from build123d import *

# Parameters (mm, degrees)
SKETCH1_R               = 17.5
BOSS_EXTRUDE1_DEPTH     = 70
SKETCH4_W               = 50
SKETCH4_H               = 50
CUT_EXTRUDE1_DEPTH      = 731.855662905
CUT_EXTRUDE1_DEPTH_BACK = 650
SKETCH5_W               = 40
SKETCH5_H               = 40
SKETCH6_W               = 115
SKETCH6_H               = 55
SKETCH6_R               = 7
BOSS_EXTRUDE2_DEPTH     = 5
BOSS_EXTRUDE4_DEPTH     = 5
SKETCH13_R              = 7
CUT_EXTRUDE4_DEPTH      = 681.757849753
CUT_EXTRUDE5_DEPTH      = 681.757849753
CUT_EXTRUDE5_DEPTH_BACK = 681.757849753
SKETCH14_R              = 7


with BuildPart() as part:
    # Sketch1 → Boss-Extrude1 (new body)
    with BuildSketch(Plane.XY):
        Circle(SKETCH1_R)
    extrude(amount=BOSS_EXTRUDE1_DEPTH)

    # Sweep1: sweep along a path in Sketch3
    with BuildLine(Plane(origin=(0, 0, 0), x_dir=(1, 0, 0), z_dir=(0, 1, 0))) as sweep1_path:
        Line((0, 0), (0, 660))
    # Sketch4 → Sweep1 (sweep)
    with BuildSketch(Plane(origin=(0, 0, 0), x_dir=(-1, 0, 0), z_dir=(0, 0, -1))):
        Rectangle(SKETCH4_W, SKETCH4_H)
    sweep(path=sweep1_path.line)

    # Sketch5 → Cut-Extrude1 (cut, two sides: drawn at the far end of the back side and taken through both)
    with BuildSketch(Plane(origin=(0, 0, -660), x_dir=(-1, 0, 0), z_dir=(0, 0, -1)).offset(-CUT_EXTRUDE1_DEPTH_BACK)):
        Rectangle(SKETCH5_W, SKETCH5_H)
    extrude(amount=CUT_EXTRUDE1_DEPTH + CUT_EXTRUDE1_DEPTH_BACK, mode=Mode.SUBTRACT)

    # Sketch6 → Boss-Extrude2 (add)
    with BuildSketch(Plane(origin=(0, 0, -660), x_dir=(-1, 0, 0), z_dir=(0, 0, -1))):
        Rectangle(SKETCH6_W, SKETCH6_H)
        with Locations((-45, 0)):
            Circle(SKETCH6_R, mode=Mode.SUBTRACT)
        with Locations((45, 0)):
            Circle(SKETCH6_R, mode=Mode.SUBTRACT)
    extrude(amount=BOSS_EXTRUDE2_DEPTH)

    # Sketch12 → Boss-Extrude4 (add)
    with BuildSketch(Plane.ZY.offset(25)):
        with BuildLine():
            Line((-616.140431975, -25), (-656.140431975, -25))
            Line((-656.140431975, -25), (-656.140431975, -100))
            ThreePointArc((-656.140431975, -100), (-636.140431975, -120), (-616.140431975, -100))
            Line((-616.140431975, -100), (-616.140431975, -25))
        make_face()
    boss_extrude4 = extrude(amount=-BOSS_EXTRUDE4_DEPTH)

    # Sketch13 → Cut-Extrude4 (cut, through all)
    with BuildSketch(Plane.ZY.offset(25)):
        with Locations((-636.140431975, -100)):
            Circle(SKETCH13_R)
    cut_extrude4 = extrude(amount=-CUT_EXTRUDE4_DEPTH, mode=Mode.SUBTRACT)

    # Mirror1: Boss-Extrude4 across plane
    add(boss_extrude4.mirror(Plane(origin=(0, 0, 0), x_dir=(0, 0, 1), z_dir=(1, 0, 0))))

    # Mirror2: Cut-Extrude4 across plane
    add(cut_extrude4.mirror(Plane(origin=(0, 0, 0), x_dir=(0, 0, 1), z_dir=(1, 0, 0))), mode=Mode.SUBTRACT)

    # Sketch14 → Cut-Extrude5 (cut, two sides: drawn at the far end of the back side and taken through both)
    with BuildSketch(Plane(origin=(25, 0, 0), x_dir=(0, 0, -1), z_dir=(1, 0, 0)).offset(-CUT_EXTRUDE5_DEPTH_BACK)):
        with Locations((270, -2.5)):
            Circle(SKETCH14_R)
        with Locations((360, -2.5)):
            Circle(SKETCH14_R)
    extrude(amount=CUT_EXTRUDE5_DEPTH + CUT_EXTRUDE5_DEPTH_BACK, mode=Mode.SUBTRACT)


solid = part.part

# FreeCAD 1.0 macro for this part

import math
import FreeCAD as App
import Part
import Sketcher

V = App.Vector

doc = App.newDocument("Part")
body = doc.addObject("PartDesign::Body", "Body")

# Sketch on XY plane
sketch1 = body.newObject("Sketcher::SketchObject", "Sketch")
sketch1.AttachmentSupport = (doc.getObject("XY_Plane"), [""])
sketch1.MapMode = "FlatFace"
sketch1.addGeometry(Part.Circle(V(0, 0, 0), V(0, 0, 1), 17.5), False)
sketch1.addConstraint([
    Sketcher.Constraint("Coincident", 0, 3, -1, 1),
    Sketcher.Constraint("Diameter", 0, 35.0),
])
pad1 = body.newObject("PartDesign::Pad", "Pad")
pad1.Profile = sketch1
pad1.Length = 70

# Sketch on XY plane
sketch2 = body.newObject("Sketcher::SketchObject", "Sketch001")
sketch2.AttachmentSupport = (doc.getObject("XY_Plane"), [""])
sketch2.MapMode = "FlatFace"
sketch2.addGeometry([
    Part.LineSegment(V(25, 25, 0), V(25, -25, 0)),
    Part.LineSegment(V(25, -25, 0), V(-25, -25, 0)),
    Part.LineSegment(V(-25, -25, 0), V(-25, 25, 0)),
    Part.LineSegment(V(-25, 25, 0), V(25, 25, 0)),
], False)
sketch2.addConstraint([
    Sketcher.Constraint("Coincident", 0, 2, 1, 1),
    Sketcher.Constraint("Coincident", 1, 2, 2, 1),
    Sketcher.Constraint("Coincident", 2, 2, 3, 1),
    Sketcher.Constraint("Coincident", 3, 2, 0, 1),
    Sketcher.Constraint("Vertical", 0),
    Sketcher.Constraint("Horizontal", 1),
    Sketcher.Constraint("Vertical", 2),
    Sketcher.Constraint("Horizontal", 3),
    Sketcher.Constraint("Symmetric", 0, 2, 2, 2, -1, 1),
    Sketcher.Constraint("Equal", 3, 0),
    Sketcher.Constraint("DistanceX", 1, 2, 1, 1, 50.0),
])

# Sketch on XZ plane
sketch3 = body.newObject("Sketcher::SketchObject", "Sketch002")
sketch3.AttachmentSupport = (doc.getObject("XZ_Plane"), [""])
sketch3.MapMode = "FlatFace"
sketch3.addGeometry(Part.LineSegment(V(0, 0, 0), V(0, -660, 0)), False)
sketch3.addConstraint([
    Sketcher.Constraint("Vertical", 0),
    Sketcher.Constraint("Coincident", 0, 1, -1, 1),
    Sketcher.Constraint("DistanceY", 0, 2, 0, 1, 660.0),
])
doc.recompute()

additivepipe = body.newObject("PartDesign::AdditivePipe", "AdditivePipe")
additivepipe.Profile = sketch2
additivepipe.Spine = (sketch3, ["Edge1"])

# Sketch on XY plane
sketch4 = body.newObject("Sketcher::SketchObject", "Sketch003")
sketch4.AttachmentSupport = (doc.getObject("XY_Plane"), [""])
sketch4.MapMode = "FlatFace"
sketch4.AttachmentOffset = App.Placement(V(0, 0, -660), App.Rotation())
sketch4.addGeometry([
    Part.LineSegment(V(20, 20, 0), V(20, -20, 0)),
    Part.LineSegment(V(20, -20, 0), V(-20, -20, 0)),
    Part.LineSegment(V(-20, -20, 0), V(-20, 20, 0)),
    Part.LineSegment(V(-20, 20, 0), V(20, 20, 0)),
], False)
sketch4.addConstraint([
    Sketcher.Constraint("Coincident", 0, 2, 1, 1),
    Sketcher.Constraint("Coincident", 1, 2, 2, 1),
    Sketcher.Constraint("Coincident", 2, 2, 3, 1),
    Sketcher.Constraint("Coincident", 3, 2, 0, 1),
    Sketcher.Constraint("Vertical", 0),
    Sketcher.Constraint("Horizontal", 1),
    Sketcher.Constraint("Vertical", 2),
    Sketcher.Constraint("Horizontal", 3),
    Sketcher.Constraint("Symmetric", 0, 2, 2, 2, -1, 1),
    Sketcher.Constraint("Equal", 3, 0),
    Sketcher.Constraint("DistanceX", 1, 2, 1, 1, 40.0),
])
pocket1 = body.newObject("PartDesign::Pocket", "Pocket")
pocket1.Profile = sketch4
pocket1.Type = "TwoLengths"
pocket1.Length = 731.855663
pocket1.Length2 = 650

# Sketch on XY plane
sketch5 = body.newObject("Sketcher::SketchObject", "Sketch004")
sketch5.AttachmentSupport = (doc.getObject("XY_Plane"), [""])
sketch5.MapMode = "FlatFace"
sketch5.AttachmentOffset = App.Placement(V(0, 0, -660), App.Rotation())
sketch5.addGeometry([
    Part.LineSegment(V(57.5, 27.5, 0), V(57.5, -27.5, 0)),  # 0
    Part.LineSegment(V(57.5, -27.5, 0), V(-57.5, -27.5, 0)),  # 1
    Part.LineSegment(V(-57.5, -27.5, 0), V(-57.5, 27.5, 0)),  # 2
    Part.LineSegment(V(-57.5, 27.5, 0), V(57.5, 27.5, 0)),  # 3
    Part.Circle(V(45, 0, 0), V(0, 0, 1), 7),  # 4
    Part.Circle(V(-45, 0, 0), V(0, 0, 1), 7),  # 5
], False)
sketch5.addConstraint([
    Sketcher.Constraint("Coincident", 0, 2, 1, 1),
    Sketcher.Constraint("Coincident", 1, 2, 2, 1),
    Sketcher.Constraint("Coincident", 2, 2, 3, 1),
    Sketcher.Constraint("Coincident", 3, 2, 0, 1),
    Sketcher.Constraint("Vertical", 0),
    Sketcher.Constraint("Horizontal", 1),
    Sketcher.Constraint("Vertical", 2),
    Sketcher.Constraint("Horizontal", 3),
    Sketcher.Constraint("Equal", 4, 5),
    Sketcher.Constraint("Symmetric", 4, 3, 5, 3, -1, 1),
    Sketcher.Constraint("Symmetric", 0, 2, 2, 2, -1, 1),
    Sketcher.Constraint("PointOnObject", 4, 3, -1),
    Sketcher.Constraint("Diameter", 4, 14.0),
    Sketcher.Constraint("DistanceX", 1, 2, 1, 1, 115.0),
    Sketcher.Constraint("DistanceY", 0, 2, 0, 1, 55.0),
    Sketcher.Constraint("DistanceX", -1, 1, 4, 3, 45.0),
])
pad2 = body.newObject("PartDesign::Pad", "Pad001")
pad2.Profile = sketch5
pad2.Length = 5
pad2.Reversed = True

# Sketch on YZ plane
sketch6 = body.newObject("Sketcher::SketchObject", "Sketch005")
sketch6.AttachmentSupport = (doc.getObject("YZ_Plane"), [""])
sketch6.MapMode = "FlatFace"
sketch6.AttachmentOffset = App.Placement(V(0, 0, -25), App.Rotation())
sketch6.addGeometry([
    Part.LineSegment(V(-25, -616.140432, 0), V(-25, -656.140432, 0)),
    Part.LineSegment(V(-25, -656.140432, 0), V(-100, -656.140432, 0)),
    Part.ArcOfCircle(Part.Circle(V(-100, -636.140432, 0), V(0, 0, 1), 20), math.radians(90), math.radians(270)),
    Part.LineSegment(V(-100, -616.140432, 0), V(-25, -616.140432, 0)),
], False)
sketch6.addConstraint([
    Sketcher.Constraint("Coincident", 0, 2, 1, 1),
    Sketcher.Constraint("Tangent", 1, 2, 2, 2),
    Sketcher.Constraint("Tangent", 2, 1, 3, 1),
    Sketcher.Constraint("Coincident", 3, 2, 0, 1),
    Sketcher.Constraint("Vertical", 0),
    Sketcher.Constraint("Horizontal", 1),
    Sketcher.Constraint("Horizontal", 3),
    Sketcher.Constraint("Radius", 2, 20.0),
    Sketcher.Constraint("DistanceX", 1, 2, 1, 1, 75.0),
    Sketcher.Constraint("DistanceX", 2, 3, -1, 1, 100.0),
    Sketcher.Constraint("DistanceY", 2, 3, -1, 1, 636.140432),
])
pad3 = body.newObject("PartDesign::Pad", "Pad002")
pad3.Profile = sketch6
pad3.Length = 5

# Sketch on YZ plane
sketch7 = body.newObject("Sketcher::SketchObject", "Sketch006")
sketch7.AttachmentSupport = (doc.getObject("YZ_Plane"), [""])
sketch7.MapMode = "FlatFace"
sketch7.AttachmentOffset = App.Placement(V(0, 0, -25), App.Rotation())
sketch7.addGeometry(Part.Circle(V(-100, -636.140432, 0), V(0, 0, 1), 7), False)
sketch7.addConstraint([
    Sketcher.Constraint("Diameter", 0, 14.0),
    Sketcher.Constraint("DistanceX", 0, 3, -1, 1, 100.0),
    Sketcher.Constraint("DistanceY", 0, 3, -1, 1, 636.140432),
])
pocket2 = body.newObject("PartDesign::Pocket", "Pocket001")
pocket2.Profile = sketch7
pocket2.Type = "ThroughAll"
pocket2.Reversed = True
doc.recompute()

mirrored = body.newObject("PartDesign::Mirrored", "Mirrored")
mirrored.Originals = [pad3]
mirrored.MirrorPlane = (doc.getObject("YZ_Plane"), [""])
body.Tip = mirrored
doc.recompute()

mirrored2 = body.newObject("PartDesign::Mirrored", "Mirrored001")
mirrored2.Originals = [pocket2]
mirrored2.MirrorPlane = (doc.getObject("YZ_Plane"), [""])
body.Tip = mirrored2

# Sketch on YZ plane
sketch8 = body.newObject("Sketcher::SketchObject", "Sketch007")
sketch8.AttachmentSupport = (doc.getObject("YZ_Plane"), [""])
sketch8.MapMode = "FlatFace"
sketch8.AttachmentOffset = App.Placement(V(0, 0, 25), App.Rotation())
sketch8.addGeometry([
    Part.Circle(V(-2.5, -270, 0), V(0, 0, 1), 7),
    Part.Circle(V(-2.5, -360, 0), V(0, 0, 1), 7),
], False)
sketch8.addConstraint([
    Sketcher.Constraint("Equal", 0, 1),
    Sketcher.Constraint("Vertical", 0, 3, 1, 3),
    Sketcher.Constraint("Diameter", 0, 14.0),
    Sketcher.Constraint("DistanceY", 0, 3, -1, 1, 270.0),
    Sketcher.Constraint("DistanceY", 1, 3, -1, 1, 360.0),
    Sketcher.Constraint("DistanceX", 0, 3, -1, 1, 2.5),
])
pocket3 = body.newObject("PartDesign::Pocket", "Pocket002")
pocket3.Profile = sketch8
pocket3.Type = "ThroughAll"
pocket3.Midplane = True

doc.recompute()
